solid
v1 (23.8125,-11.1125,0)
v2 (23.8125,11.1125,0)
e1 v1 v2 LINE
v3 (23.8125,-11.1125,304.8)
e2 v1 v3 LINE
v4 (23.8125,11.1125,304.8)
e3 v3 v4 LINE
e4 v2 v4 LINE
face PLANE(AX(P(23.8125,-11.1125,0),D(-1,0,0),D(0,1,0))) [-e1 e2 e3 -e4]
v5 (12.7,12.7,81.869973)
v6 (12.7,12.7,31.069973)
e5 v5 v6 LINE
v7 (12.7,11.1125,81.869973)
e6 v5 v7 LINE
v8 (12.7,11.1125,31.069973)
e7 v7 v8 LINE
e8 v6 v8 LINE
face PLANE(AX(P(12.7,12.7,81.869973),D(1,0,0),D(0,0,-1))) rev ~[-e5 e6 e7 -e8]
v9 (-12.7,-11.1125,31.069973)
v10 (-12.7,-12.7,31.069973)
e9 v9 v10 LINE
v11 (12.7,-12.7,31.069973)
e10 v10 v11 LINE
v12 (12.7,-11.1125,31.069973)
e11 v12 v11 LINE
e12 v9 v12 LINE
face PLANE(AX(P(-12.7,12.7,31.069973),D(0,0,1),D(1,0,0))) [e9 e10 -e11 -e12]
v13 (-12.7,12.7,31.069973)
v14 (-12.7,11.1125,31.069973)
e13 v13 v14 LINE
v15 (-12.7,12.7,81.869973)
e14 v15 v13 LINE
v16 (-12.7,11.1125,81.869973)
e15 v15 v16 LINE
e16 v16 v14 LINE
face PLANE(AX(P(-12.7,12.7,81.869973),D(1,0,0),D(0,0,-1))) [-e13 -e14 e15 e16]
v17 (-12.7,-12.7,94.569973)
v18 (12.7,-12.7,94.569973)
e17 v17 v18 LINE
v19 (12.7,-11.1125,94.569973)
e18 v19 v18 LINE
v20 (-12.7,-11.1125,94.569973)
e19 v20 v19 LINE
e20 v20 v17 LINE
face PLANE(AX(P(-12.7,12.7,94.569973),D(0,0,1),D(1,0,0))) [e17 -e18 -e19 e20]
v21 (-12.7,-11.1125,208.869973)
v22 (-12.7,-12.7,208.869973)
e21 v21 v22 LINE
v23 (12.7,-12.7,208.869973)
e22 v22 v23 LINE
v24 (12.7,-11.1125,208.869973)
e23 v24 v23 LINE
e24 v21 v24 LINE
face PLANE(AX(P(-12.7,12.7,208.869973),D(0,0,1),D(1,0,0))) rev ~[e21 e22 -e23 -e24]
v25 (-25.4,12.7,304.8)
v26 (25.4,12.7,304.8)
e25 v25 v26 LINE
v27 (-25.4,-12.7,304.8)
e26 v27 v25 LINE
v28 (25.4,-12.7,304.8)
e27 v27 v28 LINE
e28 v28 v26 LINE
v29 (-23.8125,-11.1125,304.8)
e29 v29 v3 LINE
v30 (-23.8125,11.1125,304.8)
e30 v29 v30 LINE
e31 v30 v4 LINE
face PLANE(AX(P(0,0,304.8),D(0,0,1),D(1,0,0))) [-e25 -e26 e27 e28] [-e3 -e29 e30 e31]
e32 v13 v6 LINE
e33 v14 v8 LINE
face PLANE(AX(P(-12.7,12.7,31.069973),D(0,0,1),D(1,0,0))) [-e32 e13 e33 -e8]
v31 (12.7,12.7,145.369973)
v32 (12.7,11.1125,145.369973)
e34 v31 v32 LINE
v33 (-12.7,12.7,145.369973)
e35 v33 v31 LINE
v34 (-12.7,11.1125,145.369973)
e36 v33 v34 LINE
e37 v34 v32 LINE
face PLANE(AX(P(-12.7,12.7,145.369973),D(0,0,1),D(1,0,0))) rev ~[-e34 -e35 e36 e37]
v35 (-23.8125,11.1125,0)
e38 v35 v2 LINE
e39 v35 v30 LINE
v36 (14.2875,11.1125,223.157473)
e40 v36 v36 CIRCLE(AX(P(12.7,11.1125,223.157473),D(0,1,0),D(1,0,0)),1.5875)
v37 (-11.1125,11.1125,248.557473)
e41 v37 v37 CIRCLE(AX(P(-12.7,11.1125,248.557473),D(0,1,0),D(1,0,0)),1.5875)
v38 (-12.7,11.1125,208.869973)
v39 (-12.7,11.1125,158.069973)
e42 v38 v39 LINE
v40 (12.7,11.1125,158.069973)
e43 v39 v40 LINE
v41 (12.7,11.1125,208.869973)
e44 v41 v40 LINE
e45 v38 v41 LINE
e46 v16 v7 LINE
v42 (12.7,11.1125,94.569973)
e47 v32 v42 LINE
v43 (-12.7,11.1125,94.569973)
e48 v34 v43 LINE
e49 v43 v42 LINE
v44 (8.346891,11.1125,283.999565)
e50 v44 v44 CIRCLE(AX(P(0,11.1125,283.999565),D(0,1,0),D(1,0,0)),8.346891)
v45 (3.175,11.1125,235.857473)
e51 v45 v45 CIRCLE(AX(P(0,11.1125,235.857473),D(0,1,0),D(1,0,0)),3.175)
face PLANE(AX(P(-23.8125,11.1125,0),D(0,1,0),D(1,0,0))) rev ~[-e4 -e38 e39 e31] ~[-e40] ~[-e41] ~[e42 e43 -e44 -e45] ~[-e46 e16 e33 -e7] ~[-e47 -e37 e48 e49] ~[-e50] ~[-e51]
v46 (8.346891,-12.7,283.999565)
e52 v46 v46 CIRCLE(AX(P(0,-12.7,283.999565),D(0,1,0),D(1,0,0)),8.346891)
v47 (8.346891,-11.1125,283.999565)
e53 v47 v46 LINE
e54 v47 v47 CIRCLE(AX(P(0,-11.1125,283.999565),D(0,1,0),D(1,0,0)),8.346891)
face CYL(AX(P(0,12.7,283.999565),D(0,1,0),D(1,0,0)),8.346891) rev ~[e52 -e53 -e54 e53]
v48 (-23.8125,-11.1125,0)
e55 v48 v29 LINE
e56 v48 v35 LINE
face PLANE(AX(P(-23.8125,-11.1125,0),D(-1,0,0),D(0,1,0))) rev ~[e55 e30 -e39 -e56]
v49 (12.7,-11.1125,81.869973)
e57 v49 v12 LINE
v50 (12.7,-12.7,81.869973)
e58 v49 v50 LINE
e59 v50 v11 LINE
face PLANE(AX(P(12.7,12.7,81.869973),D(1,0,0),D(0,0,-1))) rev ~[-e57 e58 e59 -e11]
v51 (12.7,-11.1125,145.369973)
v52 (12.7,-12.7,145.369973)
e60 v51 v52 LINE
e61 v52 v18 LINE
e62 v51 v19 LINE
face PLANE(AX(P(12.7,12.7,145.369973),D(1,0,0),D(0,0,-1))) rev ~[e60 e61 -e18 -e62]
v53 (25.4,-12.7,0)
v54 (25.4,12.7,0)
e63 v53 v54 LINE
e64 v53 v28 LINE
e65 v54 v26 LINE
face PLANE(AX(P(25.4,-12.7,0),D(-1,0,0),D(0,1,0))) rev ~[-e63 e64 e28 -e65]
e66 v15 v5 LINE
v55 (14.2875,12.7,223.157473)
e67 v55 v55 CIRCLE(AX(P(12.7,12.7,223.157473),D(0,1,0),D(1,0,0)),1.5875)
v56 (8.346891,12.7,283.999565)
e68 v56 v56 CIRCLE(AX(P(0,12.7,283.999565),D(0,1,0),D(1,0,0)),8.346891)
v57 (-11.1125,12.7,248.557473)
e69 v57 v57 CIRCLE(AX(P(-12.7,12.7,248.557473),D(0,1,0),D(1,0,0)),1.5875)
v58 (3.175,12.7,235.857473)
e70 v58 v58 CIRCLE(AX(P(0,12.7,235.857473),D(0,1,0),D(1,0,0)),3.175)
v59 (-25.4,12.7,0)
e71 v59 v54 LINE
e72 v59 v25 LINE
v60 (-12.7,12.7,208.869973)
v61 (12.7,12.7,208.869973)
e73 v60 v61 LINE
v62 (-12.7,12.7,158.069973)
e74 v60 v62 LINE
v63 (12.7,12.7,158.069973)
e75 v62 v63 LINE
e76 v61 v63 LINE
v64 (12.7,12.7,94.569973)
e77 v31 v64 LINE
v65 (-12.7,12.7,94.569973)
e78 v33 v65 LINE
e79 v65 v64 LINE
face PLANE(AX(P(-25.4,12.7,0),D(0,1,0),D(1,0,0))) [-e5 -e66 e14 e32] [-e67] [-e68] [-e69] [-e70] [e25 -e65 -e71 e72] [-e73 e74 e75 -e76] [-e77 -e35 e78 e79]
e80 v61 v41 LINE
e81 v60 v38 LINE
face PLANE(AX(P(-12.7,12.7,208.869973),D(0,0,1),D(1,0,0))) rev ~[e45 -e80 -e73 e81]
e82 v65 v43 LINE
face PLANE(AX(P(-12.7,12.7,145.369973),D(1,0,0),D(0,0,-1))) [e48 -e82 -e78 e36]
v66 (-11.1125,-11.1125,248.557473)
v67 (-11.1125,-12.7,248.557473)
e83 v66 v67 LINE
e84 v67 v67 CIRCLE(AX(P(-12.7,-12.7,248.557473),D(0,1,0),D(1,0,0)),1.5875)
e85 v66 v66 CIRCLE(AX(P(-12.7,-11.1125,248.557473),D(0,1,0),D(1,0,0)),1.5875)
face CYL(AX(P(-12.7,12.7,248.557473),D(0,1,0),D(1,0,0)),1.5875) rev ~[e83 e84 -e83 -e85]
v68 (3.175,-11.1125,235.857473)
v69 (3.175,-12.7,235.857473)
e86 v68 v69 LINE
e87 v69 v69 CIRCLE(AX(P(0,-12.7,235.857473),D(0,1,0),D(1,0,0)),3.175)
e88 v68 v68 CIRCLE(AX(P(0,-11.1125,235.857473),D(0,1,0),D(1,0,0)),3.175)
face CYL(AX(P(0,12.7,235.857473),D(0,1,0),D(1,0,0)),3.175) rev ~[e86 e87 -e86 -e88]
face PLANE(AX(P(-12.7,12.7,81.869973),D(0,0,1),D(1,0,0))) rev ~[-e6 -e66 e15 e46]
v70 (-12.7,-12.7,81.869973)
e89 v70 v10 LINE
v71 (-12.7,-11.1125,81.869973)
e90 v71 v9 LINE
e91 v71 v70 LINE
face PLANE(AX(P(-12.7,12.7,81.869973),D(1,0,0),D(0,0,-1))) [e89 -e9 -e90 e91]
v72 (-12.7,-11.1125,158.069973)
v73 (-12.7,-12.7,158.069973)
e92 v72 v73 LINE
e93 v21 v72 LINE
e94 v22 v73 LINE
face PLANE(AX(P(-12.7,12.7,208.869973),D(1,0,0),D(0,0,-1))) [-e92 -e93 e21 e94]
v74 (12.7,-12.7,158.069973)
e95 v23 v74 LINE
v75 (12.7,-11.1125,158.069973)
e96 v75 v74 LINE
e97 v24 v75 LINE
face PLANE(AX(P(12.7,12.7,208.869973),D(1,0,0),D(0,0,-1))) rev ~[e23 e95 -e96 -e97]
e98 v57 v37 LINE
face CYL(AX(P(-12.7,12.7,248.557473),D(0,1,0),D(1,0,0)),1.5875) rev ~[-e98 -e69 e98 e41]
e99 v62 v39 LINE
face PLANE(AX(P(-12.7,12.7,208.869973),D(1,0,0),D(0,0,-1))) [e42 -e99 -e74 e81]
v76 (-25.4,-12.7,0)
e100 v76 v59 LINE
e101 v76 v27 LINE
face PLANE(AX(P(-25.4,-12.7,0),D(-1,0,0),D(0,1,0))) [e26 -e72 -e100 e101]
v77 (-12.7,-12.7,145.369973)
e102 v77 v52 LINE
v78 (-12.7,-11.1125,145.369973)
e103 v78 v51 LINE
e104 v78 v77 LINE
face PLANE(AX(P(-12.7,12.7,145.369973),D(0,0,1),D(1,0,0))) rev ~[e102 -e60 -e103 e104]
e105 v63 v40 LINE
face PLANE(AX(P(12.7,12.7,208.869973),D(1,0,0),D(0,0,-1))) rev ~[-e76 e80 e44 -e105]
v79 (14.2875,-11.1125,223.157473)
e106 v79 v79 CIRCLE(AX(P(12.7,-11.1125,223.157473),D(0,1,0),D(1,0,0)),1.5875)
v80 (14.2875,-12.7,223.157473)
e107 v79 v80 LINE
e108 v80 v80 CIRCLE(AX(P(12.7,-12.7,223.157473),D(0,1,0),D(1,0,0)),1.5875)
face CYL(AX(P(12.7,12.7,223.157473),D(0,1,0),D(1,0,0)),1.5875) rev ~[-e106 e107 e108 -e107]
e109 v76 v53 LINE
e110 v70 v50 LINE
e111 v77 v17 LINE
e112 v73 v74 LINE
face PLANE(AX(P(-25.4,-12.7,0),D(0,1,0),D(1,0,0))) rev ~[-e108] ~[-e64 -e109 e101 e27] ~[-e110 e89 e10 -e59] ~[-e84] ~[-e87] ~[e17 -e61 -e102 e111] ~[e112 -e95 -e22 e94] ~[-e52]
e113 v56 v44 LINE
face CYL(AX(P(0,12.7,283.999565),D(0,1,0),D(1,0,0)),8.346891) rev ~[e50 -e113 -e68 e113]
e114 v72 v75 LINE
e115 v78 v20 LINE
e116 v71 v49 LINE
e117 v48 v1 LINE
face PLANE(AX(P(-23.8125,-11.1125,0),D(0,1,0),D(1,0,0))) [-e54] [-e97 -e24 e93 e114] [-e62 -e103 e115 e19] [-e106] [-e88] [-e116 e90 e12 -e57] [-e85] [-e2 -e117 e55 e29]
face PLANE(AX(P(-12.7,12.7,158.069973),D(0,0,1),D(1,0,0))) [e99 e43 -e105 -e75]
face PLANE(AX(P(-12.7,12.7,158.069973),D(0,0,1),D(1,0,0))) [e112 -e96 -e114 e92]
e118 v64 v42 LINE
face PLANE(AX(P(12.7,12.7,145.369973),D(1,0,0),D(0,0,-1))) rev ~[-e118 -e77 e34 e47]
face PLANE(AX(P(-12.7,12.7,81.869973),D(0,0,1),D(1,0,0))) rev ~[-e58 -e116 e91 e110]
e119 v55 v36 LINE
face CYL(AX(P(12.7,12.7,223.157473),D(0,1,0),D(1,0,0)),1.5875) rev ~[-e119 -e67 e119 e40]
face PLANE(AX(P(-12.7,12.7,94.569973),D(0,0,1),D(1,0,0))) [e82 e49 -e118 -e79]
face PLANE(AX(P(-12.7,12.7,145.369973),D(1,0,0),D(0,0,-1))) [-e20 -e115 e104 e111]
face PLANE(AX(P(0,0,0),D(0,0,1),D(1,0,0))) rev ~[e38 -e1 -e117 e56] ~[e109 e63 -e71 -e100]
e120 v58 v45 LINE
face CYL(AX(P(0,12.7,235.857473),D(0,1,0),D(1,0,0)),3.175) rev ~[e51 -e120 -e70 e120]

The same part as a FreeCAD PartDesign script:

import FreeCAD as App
import Part
import Sketcher
Q = App.Units.Quantity


def add_polygon(sketch, points):
    """Adds a closed chain of lines whose ends are joined by coincident constraints."""
    first, n = sketch.GeometryCount, len(points)
    for a, b in zip(points, points[1:] + points[:1]):
        sketch.addGeometry(Part.LineSegment(App.Vector(*a, 0), App.Vector(*b, 0)), False)
    for i in range(n):
        sketch.addConstraint(Sketcher.Constraint("Coincident", first + i, 2, first + (i + 1) % n, 1))

doc = App.newDocument("Part")
params = doc.addObject("Spreadsheet::Sheet", "Params")
for row, (alias, value) in enumerate([
    ("sketch1_width", "2 in"),
    ("sketch1_height", "1 in"),
    ("sketch1_width2", "1.875 in"),
    ("sketch1_height2", "0.875 in"),
    ("pad1_length", "12 in"),
    ("sketch2_diameter", "0.25 in"),
    ("sketch2_width", "1 in"),
    ("sketch2_height", "2 in"),
    ("sketch2_diameter2", "0.125 in"),
    ("pocket1_length", "1 in"),
], start=1):
    params.set(f"A{row}", alias)
    params.set(f"B{row}", "=" + value)
    params.setAlias(f"B{row}", alias)

body = doc.addObject("PartDesign::Body", "Body")

# Sketch on XY plane
sketch1 = doc.addObject("Sketcher::SketchObject", "Sketch")
body.addObject(sketch1)
sketch1.AttachmentSupport = (doc.XY_Plane, [""])
sketch1.MapMode = "FlatFace"
add_polygon(sketch1, [(-25.4, 12.7), (-25.4, -12.7), (25.4, -12.7), (25.4, 12.7)])  # lines 0-3
add_polygon(sketch1, [(23.8125, -11.1125), (-23.8125, -11.1125), (-23.8125, 11.1125), (23.8125, 11.1125)])  # lines 4-7
sketch1.addConstraint(Sketcher.Constraint("Vertical", 0))
sketch1.addConstraint(Sketcher.Constraint("Horizontal", 1))
sketch1.addConstraint(Sketcher.Constraint("Vertical", 2))
sketch1.addConstraint(Sketcher.Constraint("Horizontal", 3))
sketch1.addConstraint(Sketcher.Constraint("Horizontal", 4))
sketch1.addConstraint(Sketcher.Constraint("Vertical", 5))
sketch1.addConstraint(Sketcher.Constraint("Horizontal", 6))
sketch1.addConstraint(Sketcher.Constraint("Vertical", 7))
sketch1.addConstraint(Sketcher.Constraint("Symmetric", 0, 2, 2, 2, -1, 1))
sketch1.addConstraint(Sketcher.Constraint("Symmetric", 4, 2, 6, 2, -1, 1))
sketch1.addConstraint(Sketcher.Constraint("DistanceX", 1, 1, 1, 2, Q("2 in")))
sketch1.addConstraint(Sketcher.Constraint("DistanceY", 0, 2, 0, 1, Q("1 in")))
sketch1.addConstraint(Sketcher.Constraint("DistanceX", 4, 2, 4, 1, Q("1.875 in")))
sketch1.addConstraint(Sketcher.Constraint("DistanceY", 5, 1, 5, 2, Q("0.875 in")))
sketch1.setExpression("Constraints[18]", "Params.sketch1_width")
sketch1.setExpression("Constraints[19]", "Params.sketch1_height")
sketch1.setExpression("Constraints[20]", "Params.sketch1_width2")
sketch1.setExpression("Constraints[21]", "Params.sketch1_height2")
pad1 = doc.addObject("PartDesign::Pad", "Pad")
body.addObject(pad1)
pad1.Profile = sketch1
pad1.setExpression("Length", "Params.pad1_length")

# Sketch on XZ plane
sketch2 = doc.addObject("Sketcher::SketchObject", "Sketch001")
body.addObject(sketch2)
sketch2.AttachmentSupport = (doc.XZ_Plane, [""])
sketch2.MapMode = "FlatFace"
sketch2.AttachmentOffset = App.Placement(App.Vector(0, 0, -0.5 * 25.4), App.Rotation())
sketch2.addGeometry(Part.Circle(App.Vector(0, 283.999565, 0), App.Vector(0, 0, 1), 8.346891), False)  # 0
sketch2.addGeometry(Part.Circle(App.Vector(0, 235.857473, 0), App.Vector(0, 0, 1), 3.175), False)  # 1
sketch2.addGeometry(Part.Circle(App.Vector(-12.7, 248.557473, 0), App.Vector(0, 0, 1), 1.5875), False)  # 2
sketch2.addGeometry(Part.Circle(App.Vector(12.7, 223.157473, 0), App.Vector(0, 0, 1), 1.5875), False)  # 3
add_polygon(sketch2, [(-12.7, 158.069973), (-12.7, 208.869973), (12.7, 208.869973), (12.7, 158.069973)])  # lines 4-7
add_polygon(sketch2, [(-12.7, 94.569973), (-12.7, 145.369973), (12.7, 145.369973), (12.7, 94.569973)])  # lines 8-11
add_polygon(sketch2, [(-12.7, 31.069973), (-12.7, 81.869973), (12.7, 81.869973), (12.7, 31.069973)])  # lines 12-15
sketch2.addConstraint(Sketcher.Constraint("Vertical", 4))
sketch2.addConstraint(Sketcher.Constraint("Horizontal", 5))
sketch2.addConstraint(Sketcher.Constraint("Vertical", 6))
sketch2.addConstraint(Sketcher.Constraint("Horizontal", 7))
sketch2.addConstraint(Sketcher.Constraint("Vertical", 8))
sketch2.addConstraint(Sketcher.Constraint("Horizontal", 9))
sketch2.addConstraint(Sketcher.Constraint("Vertical", 10))
sketch2.addConstraint(Sketcher.Constraint("Horizontal", 11))
sketch2.addConstraint(Sketcher.Constraint("Vertical", 12))
sketch2.addConstraint(Sketcher.Constraint("Horizontal", 13))
sketch2.addConstraint(Sketcher.Constraint("Vertical", 14))
sketch2.addConstraint(Sketcher.Constraint("Horizontal", 15))
sketch2.addConstraint(Sketcher.Constraint("Equal", 2, 3))
sketch2.addConstraint(Sketcher.Constraint("PointOnObject", 0, 3, -2))
sketch2.addConstraint(Sketcher.Constraint("PointOnObject", 1, 3, -2))
sketch2.addConstraint(Sketcher.Constraint("Vertical", 2, 3, 4, 2))
sketch2.addConstraint(Sketcher.Constraint("Vertical", 3, 3, 5, 2))
sketch2.addConstraint(Sketcher.Constraint("Vertical", 7, 2, 8, 2))
sketch2.addConstraint(Sketcher.Constraint("Vertical", 6, 2, 9, 2))
sketch2.addConstraint(Sketcher.Constraint("Vertical", 11, 2, 12, 2))
sketch2.addConstraint(Sketcher.Constraint("Vertical", 10, 2, 13, 2))
sketch2.addConstraint(Sketcher.Constraint("Equal", 6, 8))
sketch2.addConstraint(Sketcher.Constraint("Equal", 10, 12))
sketch2.addConstraint(Sketcher.Constraint("Diameter", 1, Q("0.25 in")))
sketch2.addConstraint(Sketcher.Constraint("DistanceX", 5, 1, 5, 2, Q("1 in")))
sketch2.addConstraint(Sketcher.Constraint("DistanceY", 4, 1, 4, 2, Q("2 in")))
sketch2.addConstraint(Sketcher.Constraint("Diameter", 2, Q("0.125 in")))
sketch2.addConstraint(Sketcher.Constraint("DistanceY", 3, 3, 2, 3, Q("1 in")))
sketch2.addConstraint(Sketcher.Constraint("DistanceY", 12, 2, 7, 2, Q("3 in")))
sketch2.addConstraint(Sketcher.Constraint("DistanceX", 2, 3, -1, 1, Q("0.5 in")))
sketch2.addConstraint(Sketcher.Constraint("DistanceY", 1, 3, 2, 3, Q("0.5 in")))
sketch2.addConstraint(Sketcher.Constraint("DistanceY", 8, 2, 7, 2, Q("0.5 in")))
sketch2.addConstraint(Sketcher.Constraint("DistanceY", 4, 2, 3, 3, Q("0.5625 in")))
sketch2.addConstraint(Sketcher.Constraint("Diameter", 0, 16.693783))
sketch2.addConstraint(Sketcher.Constraint("DistanceY", -1, 1, 0, 3, 283.999565))
sketch2.addConstraint(Sketcher.Constraint("DistanceY", -1, 1, 1, 3, 235.857473))
sketch2.setExpression("Constraints[35]", "Params.sketch2_diameter")
sketch2.setExpression("Constraints[36]", "Params.sketch2_width")
sketch2.setExpression("Constraints[37]", "Params.sketch2_height")
sketch2.setExpression("Constraints[38]", "Params.sketch2_diameter2")
pocket1 = doc.addObject("PartDesign::Pocket", "Pocket")
body.addObject(pocket1)
pocket1.Profile = sketch2
pocket1.setExpression("Length", "Params.pocket1_length")
pocket1.Reversed = True

doc.recompute()
